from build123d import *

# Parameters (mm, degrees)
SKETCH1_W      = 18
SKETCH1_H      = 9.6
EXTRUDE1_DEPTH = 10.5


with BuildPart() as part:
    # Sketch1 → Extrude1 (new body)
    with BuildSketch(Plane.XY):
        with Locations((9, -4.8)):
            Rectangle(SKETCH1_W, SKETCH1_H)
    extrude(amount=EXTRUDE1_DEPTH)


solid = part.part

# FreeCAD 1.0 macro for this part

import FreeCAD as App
import Part
import Sketcher

doc = App.newDocument("Part")
body = doc.addObject("PartDesign::Body", "Body")

# Sketch on XY plane
sketch1 = body.newObject("Sketcher::SketchObject", "Sketch")
sketch1.AttachmentSupport = (doc.getObject("XY_Plane"), [""])
sketch1.MapMode = "FlatFace"
sketch1.addGeometry([
    Part.LineSegment(App.Vector(0, 0, 0), App.Vector(0, -10, 0)),
    Part.LineSegment(App.Vector(0, -10, 0), App.Vector(18, -10, 0)),
    Part.LineSegment(App.Vector(18, -10, 0), App.Vector(18, 0, 0)),
    Part.LineSegment(App.Vector(18, 0, 0), App.Vector(0, 0, 0)),
], False)
sketch1.addConstraint([
    Sketcher.Constraint("Coincident", 0, 2, 1, 1),
    Sketcher.Constraint("Coincident", 1, 2, 2, 1),
    Sketcher.Constraint("Coincident", 2, 2, 3, 1),
    Sketcher.Constraint("Coincident", 3, 2, 0, 1),
    Sketcher.Constraint("Vertical", 0),
    Sketcher.Constraint("Horizontal", 1),
    Sketcher.Constraint("Vertical", 2),
    Sketcher.Constraint("Horizontal", 3),
    Sketcher.Constraint("Coincident", 3, 2, -1, 1),
    Sketcher.Constraint("DistanceX", 1, 1, 1, 2, 18.0),
    Sketcher.Constraint("DistanceY", 0, 2, 0, 1, 9.6),
])
pad1 = body.newObject("PartDesign::Pad", "Pad")
pad1.Profile = sketch1
pad1.Length = 10.5

doc.recompute()
